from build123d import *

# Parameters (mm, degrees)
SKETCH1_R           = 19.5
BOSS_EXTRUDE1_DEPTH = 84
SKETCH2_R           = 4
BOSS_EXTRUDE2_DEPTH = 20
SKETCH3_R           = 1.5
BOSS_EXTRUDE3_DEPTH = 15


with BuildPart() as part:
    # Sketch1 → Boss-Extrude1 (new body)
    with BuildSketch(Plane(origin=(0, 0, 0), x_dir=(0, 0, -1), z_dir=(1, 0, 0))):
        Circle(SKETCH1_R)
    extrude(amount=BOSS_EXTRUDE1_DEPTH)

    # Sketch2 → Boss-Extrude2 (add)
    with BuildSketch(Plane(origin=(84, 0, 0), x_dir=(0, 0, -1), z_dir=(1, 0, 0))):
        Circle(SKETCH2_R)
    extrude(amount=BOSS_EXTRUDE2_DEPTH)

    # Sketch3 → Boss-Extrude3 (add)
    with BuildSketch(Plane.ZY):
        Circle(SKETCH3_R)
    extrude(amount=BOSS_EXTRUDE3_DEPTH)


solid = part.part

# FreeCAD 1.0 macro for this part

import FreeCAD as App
import Part
import Sketcher
Q = App.Units.Quantity

doc = App.newDocument("Part")
body = doc.addObject("PartDesign::Body", "Body")

# Sketch on YZ plane
sketch1 = body.newObject("Sketcher::SketchObject", "Sketch")
sketch1.AttachmentSupport = (doc.getObject("YZ_Plane"), [""])
sketch1.MapMode = "FlatFace"
sketch1.addGeometry(Part.Circle(App.Vector(0, 0, 0), App.Vector(0, 0, 1), 20), False)
sketch1.addConstraint([
    Sketcher.Constraint("Coincident", 0, 3, -1, 1),
    Sketcher.Constraint("Diameter", 0, Q("39 mm")),
])
pad1 = body.newObject("PartDesign::Pad", "Pad")
pad1.Profile = sketch1
pad1.Length = 84

# Sketch on YZ plane
sketch2 = body.newObject("Sketcher::SketchObject", "Sketch001")
sketch2.AttachmentSupport = (doc.getObject("YZ_Plane"), [""])
sketch2.MapMode = "FlatFace"
sketch2.AttachmentOffset = App.Placement(App.Vector(0, 0, 84), App.Rotation())
sketch2.addGeometry(Part.Circle(App.Vector(0, 0, 0), App.Vector(0, 0, 1), 4), False)
sketch2.addConstraint([
    Sketcher.Constraint("Coincident", 0, 3, -1, 1),
    Sketcher.Constraint("Diameter", 0, Q("8 mm")),
])
pad2 = body.newObject("PartDesign::Pad", "Pad001")
pad2.Profile = sketch2
pad2.Length = 20

# Sketch on YZ plane
sketch3 = body.newObject("Sketcher::SketchObject", "Sketch002")
sketch3.AttachmentSupport = (doc.getObject("YZ_Plane"), [""])
sketch3.MapMode = "FlatFace"
sketch3.addGeometry(Part.Circle(App.Vector(0, 0, 0), App.Vector(0, 0, 1), 1.5), False)
sketch3.addConstraint([
    Sketcher.Constraint("Coincident", 0, 3, -1, 1),
    Sketcher.Constraint("Diameter", 0, Q("3 mm")),
])
pad3 = body.newObject("PartDesign::Pad", "Pad002")
pad3.Profile = sketch3
pad3.Length = 15
pad3.Reversed = True

doc.recompute()
